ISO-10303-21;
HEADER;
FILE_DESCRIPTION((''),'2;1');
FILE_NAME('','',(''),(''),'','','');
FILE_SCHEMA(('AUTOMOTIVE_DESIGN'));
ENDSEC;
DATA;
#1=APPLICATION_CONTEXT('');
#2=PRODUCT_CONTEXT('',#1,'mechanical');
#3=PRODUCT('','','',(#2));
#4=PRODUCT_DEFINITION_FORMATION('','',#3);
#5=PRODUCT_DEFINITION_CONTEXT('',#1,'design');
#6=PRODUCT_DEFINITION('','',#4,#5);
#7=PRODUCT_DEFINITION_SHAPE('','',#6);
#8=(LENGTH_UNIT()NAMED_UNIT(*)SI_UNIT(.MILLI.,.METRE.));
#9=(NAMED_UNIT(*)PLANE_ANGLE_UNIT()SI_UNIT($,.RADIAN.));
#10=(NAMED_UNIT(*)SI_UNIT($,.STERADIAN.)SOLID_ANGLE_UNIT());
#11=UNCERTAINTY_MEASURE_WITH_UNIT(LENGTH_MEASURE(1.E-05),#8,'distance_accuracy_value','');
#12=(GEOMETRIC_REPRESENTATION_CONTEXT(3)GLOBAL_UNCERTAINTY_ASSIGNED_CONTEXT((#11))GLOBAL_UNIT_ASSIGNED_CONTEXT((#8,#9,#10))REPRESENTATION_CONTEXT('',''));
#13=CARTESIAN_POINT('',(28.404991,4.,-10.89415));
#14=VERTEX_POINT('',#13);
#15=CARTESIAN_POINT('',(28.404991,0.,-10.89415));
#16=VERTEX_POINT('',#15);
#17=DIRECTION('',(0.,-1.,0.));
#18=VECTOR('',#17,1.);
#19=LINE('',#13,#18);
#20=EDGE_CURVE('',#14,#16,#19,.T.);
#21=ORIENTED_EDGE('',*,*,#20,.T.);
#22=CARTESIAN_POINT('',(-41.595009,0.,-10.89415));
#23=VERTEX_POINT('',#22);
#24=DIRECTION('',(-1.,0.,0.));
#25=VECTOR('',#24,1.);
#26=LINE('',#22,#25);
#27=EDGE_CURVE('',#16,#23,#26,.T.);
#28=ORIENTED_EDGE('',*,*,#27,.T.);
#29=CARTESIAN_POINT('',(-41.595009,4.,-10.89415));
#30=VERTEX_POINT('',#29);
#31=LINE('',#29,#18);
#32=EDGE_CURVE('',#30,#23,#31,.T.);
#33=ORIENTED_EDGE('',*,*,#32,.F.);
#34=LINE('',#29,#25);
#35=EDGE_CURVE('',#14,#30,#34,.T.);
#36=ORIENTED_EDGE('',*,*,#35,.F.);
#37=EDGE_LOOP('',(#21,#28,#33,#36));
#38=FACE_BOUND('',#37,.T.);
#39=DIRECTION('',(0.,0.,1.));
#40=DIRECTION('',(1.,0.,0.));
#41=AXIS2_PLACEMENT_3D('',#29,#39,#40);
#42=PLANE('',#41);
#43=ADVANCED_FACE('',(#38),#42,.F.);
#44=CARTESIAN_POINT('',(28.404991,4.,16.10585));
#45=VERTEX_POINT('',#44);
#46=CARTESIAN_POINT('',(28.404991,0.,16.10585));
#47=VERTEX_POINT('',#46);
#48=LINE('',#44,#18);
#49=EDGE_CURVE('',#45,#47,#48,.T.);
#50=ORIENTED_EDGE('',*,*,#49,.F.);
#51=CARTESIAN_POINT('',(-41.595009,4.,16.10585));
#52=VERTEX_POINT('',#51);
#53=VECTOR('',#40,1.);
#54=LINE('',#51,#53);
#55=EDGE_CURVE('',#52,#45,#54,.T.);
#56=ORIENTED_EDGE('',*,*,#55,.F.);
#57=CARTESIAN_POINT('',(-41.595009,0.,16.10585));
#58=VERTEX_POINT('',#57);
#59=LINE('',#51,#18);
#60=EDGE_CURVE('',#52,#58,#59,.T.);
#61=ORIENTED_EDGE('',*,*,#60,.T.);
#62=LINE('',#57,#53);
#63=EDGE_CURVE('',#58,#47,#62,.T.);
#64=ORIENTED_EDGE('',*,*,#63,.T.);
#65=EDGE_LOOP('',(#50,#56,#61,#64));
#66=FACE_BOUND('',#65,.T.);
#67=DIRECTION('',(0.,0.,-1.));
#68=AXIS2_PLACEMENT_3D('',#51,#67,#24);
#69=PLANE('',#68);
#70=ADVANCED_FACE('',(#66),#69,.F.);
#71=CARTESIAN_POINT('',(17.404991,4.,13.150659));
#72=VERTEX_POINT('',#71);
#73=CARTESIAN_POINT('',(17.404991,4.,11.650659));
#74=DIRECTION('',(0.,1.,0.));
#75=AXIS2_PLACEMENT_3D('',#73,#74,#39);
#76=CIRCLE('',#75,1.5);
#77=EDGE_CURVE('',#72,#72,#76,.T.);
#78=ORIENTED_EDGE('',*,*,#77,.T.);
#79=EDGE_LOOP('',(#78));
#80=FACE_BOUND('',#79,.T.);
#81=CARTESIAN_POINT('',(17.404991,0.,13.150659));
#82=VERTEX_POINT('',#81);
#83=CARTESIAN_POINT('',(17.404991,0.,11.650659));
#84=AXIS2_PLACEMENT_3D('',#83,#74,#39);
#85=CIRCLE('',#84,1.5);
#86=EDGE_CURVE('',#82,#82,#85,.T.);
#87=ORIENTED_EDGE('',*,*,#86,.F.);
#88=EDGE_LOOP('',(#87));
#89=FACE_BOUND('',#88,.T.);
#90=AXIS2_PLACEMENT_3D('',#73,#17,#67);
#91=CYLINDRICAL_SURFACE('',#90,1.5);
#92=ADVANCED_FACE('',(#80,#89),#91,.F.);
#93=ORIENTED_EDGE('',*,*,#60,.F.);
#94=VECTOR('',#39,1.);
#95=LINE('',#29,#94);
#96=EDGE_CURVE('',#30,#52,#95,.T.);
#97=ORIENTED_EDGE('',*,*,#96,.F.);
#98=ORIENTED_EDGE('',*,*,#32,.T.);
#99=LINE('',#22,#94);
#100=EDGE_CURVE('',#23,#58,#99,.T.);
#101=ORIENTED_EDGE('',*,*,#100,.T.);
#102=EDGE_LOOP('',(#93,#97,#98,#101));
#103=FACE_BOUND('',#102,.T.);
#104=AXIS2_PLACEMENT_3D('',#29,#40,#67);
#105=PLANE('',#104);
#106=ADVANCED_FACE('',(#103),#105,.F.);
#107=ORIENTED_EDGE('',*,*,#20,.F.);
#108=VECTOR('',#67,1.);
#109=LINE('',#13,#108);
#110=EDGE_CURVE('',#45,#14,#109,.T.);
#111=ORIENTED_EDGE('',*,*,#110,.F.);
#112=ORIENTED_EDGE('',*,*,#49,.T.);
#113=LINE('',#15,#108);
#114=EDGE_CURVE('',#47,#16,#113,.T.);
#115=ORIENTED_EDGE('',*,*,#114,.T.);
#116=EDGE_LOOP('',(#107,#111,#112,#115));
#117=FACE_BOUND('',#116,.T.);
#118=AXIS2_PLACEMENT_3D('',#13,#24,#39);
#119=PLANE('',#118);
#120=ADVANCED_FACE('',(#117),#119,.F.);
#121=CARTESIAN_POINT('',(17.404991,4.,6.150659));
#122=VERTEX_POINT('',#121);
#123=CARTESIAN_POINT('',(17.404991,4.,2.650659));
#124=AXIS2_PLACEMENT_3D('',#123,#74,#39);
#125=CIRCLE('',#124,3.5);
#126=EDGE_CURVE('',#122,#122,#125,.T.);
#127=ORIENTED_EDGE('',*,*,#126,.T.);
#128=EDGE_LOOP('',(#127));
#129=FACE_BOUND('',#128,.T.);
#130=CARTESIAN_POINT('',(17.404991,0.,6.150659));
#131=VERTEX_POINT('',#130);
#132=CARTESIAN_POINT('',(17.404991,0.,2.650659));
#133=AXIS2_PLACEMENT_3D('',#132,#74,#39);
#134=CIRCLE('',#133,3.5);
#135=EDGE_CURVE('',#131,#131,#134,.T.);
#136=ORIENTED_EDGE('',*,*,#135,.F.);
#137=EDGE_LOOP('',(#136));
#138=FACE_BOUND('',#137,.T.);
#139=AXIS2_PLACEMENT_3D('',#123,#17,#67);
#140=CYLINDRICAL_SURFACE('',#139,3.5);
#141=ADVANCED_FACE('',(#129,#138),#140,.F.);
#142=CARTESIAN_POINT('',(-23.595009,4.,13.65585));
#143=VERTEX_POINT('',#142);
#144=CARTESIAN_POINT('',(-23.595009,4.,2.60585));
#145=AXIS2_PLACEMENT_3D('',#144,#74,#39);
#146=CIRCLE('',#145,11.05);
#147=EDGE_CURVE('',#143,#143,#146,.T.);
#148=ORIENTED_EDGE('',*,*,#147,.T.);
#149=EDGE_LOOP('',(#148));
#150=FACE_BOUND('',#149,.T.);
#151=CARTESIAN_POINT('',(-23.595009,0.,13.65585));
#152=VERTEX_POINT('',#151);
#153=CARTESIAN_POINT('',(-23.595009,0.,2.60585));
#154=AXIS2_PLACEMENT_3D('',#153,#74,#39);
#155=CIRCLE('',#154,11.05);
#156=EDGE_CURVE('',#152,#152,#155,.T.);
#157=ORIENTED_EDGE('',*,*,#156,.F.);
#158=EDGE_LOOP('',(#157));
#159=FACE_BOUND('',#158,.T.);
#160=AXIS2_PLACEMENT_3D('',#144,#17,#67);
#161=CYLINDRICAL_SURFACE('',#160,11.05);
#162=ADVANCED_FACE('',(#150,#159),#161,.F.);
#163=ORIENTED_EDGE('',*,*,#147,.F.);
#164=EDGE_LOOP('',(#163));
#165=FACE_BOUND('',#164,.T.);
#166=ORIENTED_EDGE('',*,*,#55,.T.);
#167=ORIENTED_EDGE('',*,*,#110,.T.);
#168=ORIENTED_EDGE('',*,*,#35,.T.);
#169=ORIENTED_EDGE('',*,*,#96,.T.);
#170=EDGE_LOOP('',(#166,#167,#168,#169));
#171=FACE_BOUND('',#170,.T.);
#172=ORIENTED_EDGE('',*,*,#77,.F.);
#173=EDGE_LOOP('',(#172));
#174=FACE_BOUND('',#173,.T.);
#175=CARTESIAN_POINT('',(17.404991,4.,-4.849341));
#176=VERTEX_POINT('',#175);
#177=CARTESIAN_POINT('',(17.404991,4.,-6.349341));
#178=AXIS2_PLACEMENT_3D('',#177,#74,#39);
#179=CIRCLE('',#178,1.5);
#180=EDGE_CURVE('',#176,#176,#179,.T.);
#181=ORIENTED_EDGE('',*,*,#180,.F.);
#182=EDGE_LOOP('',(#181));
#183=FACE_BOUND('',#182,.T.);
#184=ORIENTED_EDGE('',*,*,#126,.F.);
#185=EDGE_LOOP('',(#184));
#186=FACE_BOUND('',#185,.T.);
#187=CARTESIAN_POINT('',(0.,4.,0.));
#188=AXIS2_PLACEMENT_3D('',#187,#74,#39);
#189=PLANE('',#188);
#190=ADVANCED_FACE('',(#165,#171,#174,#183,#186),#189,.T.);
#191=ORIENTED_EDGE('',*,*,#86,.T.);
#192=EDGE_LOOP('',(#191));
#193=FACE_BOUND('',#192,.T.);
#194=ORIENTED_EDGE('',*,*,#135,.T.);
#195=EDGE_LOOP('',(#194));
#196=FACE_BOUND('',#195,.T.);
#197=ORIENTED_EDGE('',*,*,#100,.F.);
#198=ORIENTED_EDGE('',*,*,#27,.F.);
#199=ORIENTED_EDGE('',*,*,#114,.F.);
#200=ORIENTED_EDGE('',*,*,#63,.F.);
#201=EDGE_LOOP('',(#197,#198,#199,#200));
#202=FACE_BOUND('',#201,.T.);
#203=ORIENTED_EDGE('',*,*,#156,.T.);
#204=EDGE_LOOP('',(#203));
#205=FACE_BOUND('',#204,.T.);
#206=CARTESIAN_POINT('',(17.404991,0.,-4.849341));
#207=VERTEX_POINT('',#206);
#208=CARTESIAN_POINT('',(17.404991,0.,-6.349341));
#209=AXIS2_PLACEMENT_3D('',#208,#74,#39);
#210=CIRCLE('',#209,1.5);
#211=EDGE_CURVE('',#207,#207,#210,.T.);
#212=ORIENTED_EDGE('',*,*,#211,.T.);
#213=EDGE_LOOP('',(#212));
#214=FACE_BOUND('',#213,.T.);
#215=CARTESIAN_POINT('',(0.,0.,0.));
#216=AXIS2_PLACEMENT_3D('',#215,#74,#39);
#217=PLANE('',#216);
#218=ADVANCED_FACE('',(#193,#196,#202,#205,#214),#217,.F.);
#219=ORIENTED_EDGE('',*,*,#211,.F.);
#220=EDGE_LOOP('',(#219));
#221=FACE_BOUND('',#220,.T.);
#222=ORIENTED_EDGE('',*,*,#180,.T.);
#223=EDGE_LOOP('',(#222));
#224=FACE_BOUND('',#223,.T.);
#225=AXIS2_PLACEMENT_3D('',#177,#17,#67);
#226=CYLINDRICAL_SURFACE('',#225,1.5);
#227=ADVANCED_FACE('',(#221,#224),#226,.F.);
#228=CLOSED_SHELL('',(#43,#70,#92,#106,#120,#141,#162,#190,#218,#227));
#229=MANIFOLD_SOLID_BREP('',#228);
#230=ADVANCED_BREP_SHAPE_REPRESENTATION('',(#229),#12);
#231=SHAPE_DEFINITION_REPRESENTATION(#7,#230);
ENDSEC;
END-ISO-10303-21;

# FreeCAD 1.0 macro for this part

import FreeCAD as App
import Part
import Sketcher

doc = App.newDocument("Part")
params = doc.addObject("Spreadsheet::Sheet", "Params")
for row, (alias, value) in enumerate([
    ("sketch1_diameter", "3 mm"),
    ("sketch1_diameter2", "7 mm"),
    ("sketch1_diameter3", "22.1 mm"),
    ("sketch1_width", "70 mm"),
    ("sketch1_height", "27 mm"),
    ("pad1_length", "4 mm"),
], start=1):
    params.set(f"A{row}", alias)
    params.set(f"B{row}", "=" + value)
    params.setAlias(f"B{row}", alias)

body = doc.addObject("PartDesign::Body", "Body")

# Sketch on XZ plane
sketch1 = doc.addObject("Sketcher::SketchObject", "Sketch")
body.addObject(sketch1)
sketch1.AttachmentSupport = (doc.XZ_Plane, [""])
sketch1.MapMode = "FlatFace"
sketch1.addGeometry(Part.LineSegment(App.Vector(-41.6, -10.9, 0), App.Vector(-41.6, 16.1, 0)), False)
sketch1.addGeometry(Part.LineSegment(App.Vector(-41.6, 16.1, 0), App.Vector(28.4, 16.1, 0)), False)
sketch1.addGeometry(Part.LineSegment(App.Vector(28.4, 16.1, 0), App.Vector(28.4, -10.9, 0)), False)
sketch1.addGeometry(Part.LineSegment(App.Vector(28.4, -10.9, 0), App.Vector(-41.6, -10.9, 0)), False)
sketch1.addGeometry(Part.Circle(App.Vector(17.4, 11.7, 0), App.Vector(0, 0, 1), 1.5), False)
sketch1.addGeometry(Part.Circle(App.Vector(17.4, 2.7, 0), App.Vector(0, 0, 1), 3.5), False)
sketch1.addGeometry(Part.Circle(App.Vector(-23.6, 2.6, 0), App.Vector(0, 0, 1), 11.1), False)
sketch1.addGeometry(Part.Circle(App.Vector(17.4, -6.3, 0), App.Vector(0, 0, 1), 1.5), False)
sketch1.addConstraint(Sketcher.Constraint("Coincident", 0, 2, 1, 1))
sketch1.addConstraint(Sketcher.Constraint("Coincident", 1, 2, 2, 1))
sketch1.addConstraint(Sketcher.Constraint("Coincident", 2, 2, 3, 1))
sketch1.addConstraint(Sketcher.Constraint("Coincident", 3, 2, 0, 1))
sketch1.addConstraint(Sketcher.Constraint("Vertical", 0))
sketch1.addConstraint(Sketcher.Constraint("Horizontal", 1))
sketch1.addConstraint(Sketcher.Constraint("Vertical", 2))
sketch1.addConstraint(Sketcher.Constraint("Horizontal", 3))
sketch1.addConstraint(Sketcher.Constraint("Equal", 4, 7))
sketch1.addConstraint(Sketcher.Constraint("Vertical", 4, 3, 5, 3))
sketch1.addConstraint(Sketcher.Constraint("Vertical", 5, 3, 7, 3))
sketch1.addConstraint(Sketcher.Constraint("Diameter", 4, 3.0))
sketch1.addConstraint(Sketcher.Constraint("Diameter", 5, 7.0))
sketch1.addConstraint(Sketcher.Constraint("Diameter", 6, 22.1))
sketch1.addConstraint(Sketcher.Constraint("DistanceX", 1, 1, 1, 2, 70.0))
sketch1.addConstraint(Sketcher.Constraint("DistanceY", 0, 1, 0, 2, 27.0))
sketch1.addConstraint(Sketcher.Constraint("DistanceY", 5, 3, 4, 3, 9.0))
sketch1.addConstraint(Sketcher.Constraint("DistanceX", 6, 3, 5, 3, 41.0))
sketch1.addConstraint(Sketcher.Constraint("DistanceY", 7, 3, 5, 3, 9.0))
sketch1.addConstraint(Sketcher.Constraint("DistanceX", 0, 2, 6, 3, 18.0))
sketch1.addConstraint(Sketcher.Constraint("DistanceY", 6, 3, 0, 2, 13.5))
sketch1.addConstraint(Sketcher.Constraint("DistanceX", -1, 1, 4, 3, 17.404991))
sketch1.addConstraint(Sketcher.Constraint("DistanceY", -1, 1, 4, 3, 11.650659))
sketch1.addConstraint(Sketcher.Constraint("DistanceY", -1, 1, 6, 3, 2.60585))
sketch1.setExpression("Constraints[11]", "Params.sketch1_diameter")
sketch1.setExpression("Constraints[12]", "Params.sketch1_diameter2")
sketch1.setExpression("Constraints[13]", "Params.sketch1_diameter3")
sketch1.setExpression("Constraints[14]", "Params.sketch1_width")
sketch1.setExpression("Constraints[15]", "Params.sketch1_height")
pad1 = doc.addObject("PartDesign::Pad", "Pad")
body.addObject(pad1)
pad1.Profile = sketch1
pad1.setExpression("Length", "Params.pad1_length")
pad1.Reversed = True

doc.recompute()
